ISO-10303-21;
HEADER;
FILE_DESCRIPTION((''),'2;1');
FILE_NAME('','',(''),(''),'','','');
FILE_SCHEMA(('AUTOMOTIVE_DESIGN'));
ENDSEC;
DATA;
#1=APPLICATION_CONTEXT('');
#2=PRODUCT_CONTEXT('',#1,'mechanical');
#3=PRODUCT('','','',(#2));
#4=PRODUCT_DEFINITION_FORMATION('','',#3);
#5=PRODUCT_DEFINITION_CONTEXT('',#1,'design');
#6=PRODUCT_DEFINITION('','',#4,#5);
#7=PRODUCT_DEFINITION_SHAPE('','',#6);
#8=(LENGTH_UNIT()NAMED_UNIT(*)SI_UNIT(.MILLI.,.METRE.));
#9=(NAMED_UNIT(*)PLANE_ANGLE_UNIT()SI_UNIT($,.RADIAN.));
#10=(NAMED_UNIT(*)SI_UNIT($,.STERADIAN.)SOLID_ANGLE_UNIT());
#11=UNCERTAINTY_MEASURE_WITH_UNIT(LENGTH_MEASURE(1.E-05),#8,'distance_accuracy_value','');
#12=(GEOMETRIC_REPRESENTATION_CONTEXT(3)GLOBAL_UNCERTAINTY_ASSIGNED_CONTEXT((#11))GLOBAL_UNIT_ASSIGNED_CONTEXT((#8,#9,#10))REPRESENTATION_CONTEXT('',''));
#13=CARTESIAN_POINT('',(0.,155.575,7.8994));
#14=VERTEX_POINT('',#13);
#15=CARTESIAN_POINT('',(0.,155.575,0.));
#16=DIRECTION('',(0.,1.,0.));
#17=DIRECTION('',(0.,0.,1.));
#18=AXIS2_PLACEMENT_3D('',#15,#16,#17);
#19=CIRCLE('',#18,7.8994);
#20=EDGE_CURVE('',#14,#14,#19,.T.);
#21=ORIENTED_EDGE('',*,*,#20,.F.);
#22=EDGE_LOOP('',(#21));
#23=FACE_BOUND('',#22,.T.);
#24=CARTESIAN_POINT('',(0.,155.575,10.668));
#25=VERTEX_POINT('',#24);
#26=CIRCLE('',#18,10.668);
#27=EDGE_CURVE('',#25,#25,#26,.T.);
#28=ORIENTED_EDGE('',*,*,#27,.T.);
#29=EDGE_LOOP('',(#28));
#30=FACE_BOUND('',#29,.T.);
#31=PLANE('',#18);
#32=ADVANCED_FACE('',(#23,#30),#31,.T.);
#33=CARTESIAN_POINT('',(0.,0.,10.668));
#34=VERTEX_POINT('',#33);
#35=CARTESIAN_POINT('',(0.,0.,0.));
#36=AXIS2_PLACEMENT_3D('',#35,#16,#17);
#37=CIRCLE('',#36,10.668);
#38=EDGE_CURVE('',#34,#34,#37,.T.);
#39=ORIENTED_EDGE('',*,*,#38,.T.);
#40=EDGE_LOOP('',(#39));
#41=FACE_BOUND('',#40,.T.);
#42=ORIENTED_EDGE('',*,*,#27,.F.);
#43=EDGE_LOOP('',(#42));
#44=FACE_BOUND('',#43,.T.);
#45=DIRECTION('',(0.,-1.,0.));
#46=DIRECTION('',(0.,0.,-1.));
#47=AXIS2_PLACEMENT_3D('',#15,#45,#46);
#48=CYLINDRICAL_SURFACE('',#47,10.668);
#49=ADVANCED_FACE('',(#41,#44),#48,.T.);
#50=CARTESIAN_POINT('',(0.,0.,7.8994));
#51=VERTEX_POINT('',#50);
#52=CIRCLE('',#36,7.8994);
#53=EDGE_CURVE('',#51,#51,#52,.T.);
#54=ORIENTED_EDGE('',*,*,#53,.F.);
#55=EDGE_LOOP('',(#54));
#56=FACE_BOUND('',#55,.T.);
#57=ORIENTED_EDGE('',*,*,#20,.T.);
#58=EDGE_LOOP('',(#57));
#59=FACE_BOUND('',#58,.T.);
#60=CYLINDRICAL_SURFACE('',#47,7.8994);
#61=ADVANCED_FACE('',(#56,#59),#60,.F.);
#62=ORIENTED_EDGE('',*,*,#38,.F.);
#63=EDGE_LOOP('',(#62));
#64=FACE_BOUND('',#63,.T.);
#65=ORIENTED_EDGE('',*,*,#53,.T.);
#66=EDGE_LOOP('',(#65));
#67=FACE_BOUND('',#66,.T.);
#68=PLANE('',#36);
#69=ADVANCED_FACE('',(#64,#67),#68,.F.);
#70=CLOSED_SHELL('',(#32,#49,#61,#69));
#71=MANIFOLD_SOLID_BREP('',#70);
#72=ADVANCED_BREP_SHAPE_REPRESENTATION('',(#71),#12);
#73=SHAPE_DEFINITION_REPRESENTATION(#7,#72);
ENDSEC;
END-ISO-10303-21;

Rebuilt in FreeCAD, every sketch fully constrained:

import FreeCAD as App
import Part
import Sketcher

V = App.Vector
Q = App.Units.Quantity

doc = App.newDocument("Part")
body = doc.addObject("PartDesign::Body", "Body")

sketch1 = body.newObject("Sketcher::SketchObject", "Sketch")
sketch1.AttachmentSupport = (doc.getObject("XZ_Plane"), [""])
sketch1.MapMode = "FlatFace"
sketch1.addGeometry(Part.Circle(V(0, 0, 0), V(0, 0, 1), 11), False)
sketch1.addGeometry(Part.Circle(V(0, 0, 0), V(0, 0, 1), 8), False)
sketch1.addConstraint(Sketcher.Constraint("Coincident", 0, 3, -1, 1))
sketch1.addConstraint(Sketcher.Constraint("Coincident", 1, 3, -1, 1))
sketch1.addConstraint(Sketcher.Constraint("Diameter", 0, Q("0.84 in")))
sketch1.addConstraint(Sketcher.Constraint("Diameter", 1, Q("0.622 in")))
pad1 = body.newObject("PartDesign::Pad", "Pad")
pad1.Profile = sketch1
pad1.Length = Q("6.125 in")
pad1.Reversed = True

doc.recompute()
